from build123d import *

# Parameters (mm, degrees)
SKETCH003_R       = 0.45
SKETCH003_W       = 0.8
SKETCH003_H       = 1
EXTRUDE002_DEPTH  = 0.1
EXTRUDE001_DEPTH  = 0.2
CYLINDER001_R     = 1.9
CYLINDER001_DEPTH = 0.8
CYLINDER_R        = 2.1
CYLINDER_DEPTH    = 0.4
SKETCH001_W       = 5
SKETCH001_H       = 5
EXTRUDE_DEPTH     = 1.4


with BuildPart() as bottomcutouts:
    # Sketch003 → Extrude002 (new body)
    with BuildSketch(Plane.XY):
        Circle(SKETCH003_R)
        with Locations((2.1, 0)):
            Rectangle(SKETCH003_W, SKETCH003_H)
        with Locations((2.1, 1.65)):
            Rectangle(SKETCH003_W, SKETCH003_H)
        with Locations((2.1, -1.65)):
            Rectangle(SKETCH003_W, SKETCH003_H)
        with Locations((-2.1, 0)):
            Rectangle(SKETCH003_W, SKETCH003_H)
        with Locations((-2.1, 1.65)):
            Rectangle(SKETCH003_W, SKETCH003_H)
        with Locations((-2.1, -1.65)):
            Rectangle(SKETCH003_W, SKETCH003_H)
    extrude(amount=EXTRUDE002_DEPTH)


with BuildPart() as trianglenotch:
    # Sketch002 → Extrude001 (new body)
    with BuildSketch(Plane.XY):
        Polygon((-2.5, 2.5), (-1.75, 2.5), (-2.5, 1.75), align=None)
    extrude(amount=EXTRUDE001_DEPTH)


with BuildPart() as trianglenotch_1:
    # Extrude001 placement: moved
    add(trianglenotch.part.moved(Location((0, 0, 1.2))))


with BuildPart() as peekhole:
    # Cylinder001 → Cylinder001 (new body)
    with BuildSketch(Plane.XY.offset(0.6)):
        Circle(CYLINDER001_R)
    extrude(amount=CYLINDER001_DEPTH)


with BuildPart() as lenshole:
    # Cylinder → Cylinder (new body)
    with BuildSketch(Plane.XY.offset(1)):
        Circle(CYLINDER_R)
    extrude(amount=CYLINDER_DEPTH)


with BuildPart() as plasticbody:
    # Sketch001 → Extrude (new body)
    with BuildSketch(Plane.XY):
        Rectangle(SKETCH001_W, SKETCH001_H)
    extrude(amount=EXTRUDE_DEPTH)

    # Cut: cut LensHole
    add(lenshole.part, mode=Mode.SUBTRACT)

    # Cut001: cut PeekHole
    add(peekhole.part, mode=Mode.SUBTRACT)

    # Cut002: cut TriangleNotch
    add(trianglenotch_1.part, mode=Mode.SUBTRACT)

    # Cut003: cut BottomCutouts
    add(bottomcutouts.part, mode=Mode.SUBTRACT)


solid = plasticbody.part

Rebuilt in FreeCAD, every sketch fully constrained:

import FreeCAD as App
import Part
import Sketcher
from FreeCAD import Vector
Q = App.Units.Quantity


def add_polygon(sketch, points):
    """Adds a closed chain of lines whose ends are joined by coincident constraints."""
    first, n = sketch.GeometryCount, len(points)
    for a, b in zip(points, points[1:] + points[:1]):
        sketch.addGeometry(Part.LineSegment(App.Vector(*a, 0), App.Vector(*b, 0)), False)
    for i in range(n):
        sketch.addConstraint(Sketcher.Constraint("Coincident", first + i, 2, first + (i + 1) % n, 1))

doc = App.newDocument("Part")
params = doc.addObject("Spreadsheet::Sheet", "Params")
for row, (alias, value) in enumerate([
    ("sketch1_diameter", "0.9 mm"),
    ("sketch1_height", "1 mm"),
    ("sketch1_width", "0.8 mm"),
    ("pad1_length", "0.1 mm"),
    ("sketch2_width", "0.75 mm"),
    ("pad2_length", "0.2 mm"),
    ("sketch3_diameter", "3.8 mm"),
    ("pad3_length", "0.8 mm"),
    ("sketch4_diameter", "4.2 mm"),
    ("pad4_length", "0.4 mm"),
    ("sketch5_width", "5 mm"),
    ("pad5_length", "1.4 mm"),
], start=1):
    params.set(f"A{row}", alias)
    params.set(f"B{row}", "=" + value)
    params.setAlias(f"B{row}", alias)

body = doc.addObject("PartDesign::Body", "Body")
body.AllowCompound = True

sketch1 = body.newObject("Sketcher::SketchObject", "Sketch")
sketch1.AttachmentSupport = (doc.getObject("XY_Plane"), [""])
sketch1.MapMode = "FlatFace"
sketch1.addGeometry(Part.Circle(Vector(0, 0, 0), Vector(0, 0, 1), 0.45), False)
add_polygon(sketch1, [(1.7, 0.5), (1.7, -0.5), (2.5, -0.5), (2.5, 0.5)])
add_polygon(sketch1, [(1.7, 2.15), (1.7, 1.15), (2.5, 1.15), (2.5, 2.15)])
add_polygon(sketch1, [(1.7, -1.15), (1.7, -2.15), (2.5, -2.15), (2.5, -1.15)])
add_polygon(sketch1, [(-2.5, 0.5), (-2.5, -0.5), (-1.7, -0.5), (-1.7, 0.5)])
add_polygon(sketch1, [(-2.5, 2.15), (-2.5, 1.15), (-1.7, 1.15), (-1.7, 2.15)])
add_polygon(sketch1, [(-2.5, -1.15), (-2.5, -2.15), (-1.7, -2.15), (-1.7, -1.15)])
sketch1.addConstraint(Sketcher.Constraint("Vertical", 1))
sketch1.addConstraint(Sketcher.Constraint("Horizontal", 2))
sketch1.addConstraint(Sketcher.Constraint("Vertical", 3))
sketch1.addConstraint(Sketcher.Constraint("Horizontal", 4))
sketch1.addConstraint(Sketcher.Constraint("Vertical", 5))
sketch1.addConstraint(Sketcher.Constraint("Horizontal", 6))
sketch1.addConstraint(Sketcher.Constraint("Vertical", 7))
sketch1.addConstraint(Sketcher.Constraint("Horizontal", 8))
sketch1.addConstraint(Sketcher.Constraint("Vertical", 9))
sketch1.addConstraint(Sketcher.Constraint("Horizontal", 10))
sketch1.addConstraint(Sketcher.Constraint("Vertical", 11))
sketch1.addConstraint(Sketcher.Constraint("Horizontal", 12))
sketch1.addConstraint(Sketcher.Constraint("Vertical", 13))
sketch1.addConstraint(Sketcher.Constraint("Horizontal", 14))
sketch1.addConstraint(Sketcher.Constraint("Vertical", 15))
sketch1.addConstraint(Sketcher.Constraint("Horizontal", 16))
sketch1.addConstraint(Sketcher.Constraint("Vertical", 17))
sketch1.addConstraint(Sketcher.Constraint("Horizontal", 18))
sketch1.addConstraint(Sketcher.Constraint("Vertical", 19))
sketch1.addConstraint(Sketcher.Constraint("Horizontal", 20))
sketch1.addConstraint(Sketcher.Constraint("Vertical", 21))
sketch1.addConstraint(Sketcher.Constraint("Horizontal", 22))
sketch1.addConstraint(Sketcher.Constraint("Vertical", 23))
sketch1.addConstraint(Sketcher.Constraint("Horizontal", 24))
sketch1.addConstraint(Sketcher.Constraint("Coincident", 0, 3, -1, 1))
sketch1.addConstraint(Sketcher.Constraint("Symmetric", 3, 2, 13, 2, -1, 1))
sketch1.addConstraint(Sketcher.Constraint("Symmetric", 1, 2, 15, 2, -1, 1))
sketch1.addConstraint(Sketcher.Constraint("Symmetric", 11, 2, 17, 2, -1, 1))
sketch1.addConstraint(Sketcher.Constraint("Symmetric", 9, 2, 19, 2, -1, 1))
sketch1.addConstraint(Sketcher.Constraint("Symmetric", 7, 2, 21, 2, -1, 1))
sketch1.addConstraint(Sketcher.Constraint("Symmetric", 5, 2, 23, 2, -1, 1))
sketch1.addConstraint(Sketcher.Constraint("Symmetric", 6, 2, 17, 2, -2))
sketch1.addConstraint(Sketcher.Constraint("Symmetric", 8, 2, 19, 2, -2))
sketch1.addConstraint(Sketcher.Constraint("Horizontal", 2, 2, 13, 2))
sketch1.addConstraint(Sketcher.Constraint("Vertical", 4, 2, 5, 2))
sketch1.addConstraint(Sketcher.Constraint("Vertical", 3, 2, 6, 2))
sketch1.addConstraint(Sketcher.Constraint("Equal", 3, 5))
sketch1.addConstraint(Sketcher.Constraint("Diameter", 0, Q("0.9 mm")))
sketch1.addConstraint(Sketcher.Constraint("DistanceY", 1, 2, 1, 1, Q("1 mm")))
sketch1.addConstraint(Sketcher.Constraint("DistanceX", 2, 1, 2, 2, Q("0.8 mm")))
sketch1.addConstraint(Sketcher.Constraint("DistanceX", -1, 1, 1, 2, Q("1.7 mm")))
sketch1.addConstraint(Sketcher.Constraint("DistanceY", -1, 1, 5, 2, Q("1.15 mm")))
sketch1.setExpression("Constraints[61]", "Params.sketch1_diameter")
sketch1.setExpression("Constraints[62]", "Params.sketch1_height")
sketch1.setExpression("Constraints[63]", "Params.sketch1_width")
pad1 = body.newObject("PartDesign::Pad", "Pad")
pad1.Profile = sketch1
pad1.setExpression("Length", "Params.pad1_length")
body2 = doc.addObject("PartDesign::Body", "Body001")

sketch2 = body2.newObject("Sketcher::SketchObject", "Sketch001")
sketch2.AttachmentSupport = (doc.getObject("XY_Plane001"), [""])
sketch2.MapMode = "FlatFace"
add_polygon(sketch2, [(-1.8, 2.5), (-2.5, 2.5), (-2.5, 1.8)])
sketch2.addConstraint(Sketcher.Constraint("Horizontal", 0))
sketch2.addConstraint(Sketcher.Constraint("Vertical", 1))
sketch2.addConstraint(Sketcher.Constraint("Equal", 0, 1))
sketch2.addConstraint(Sketcher.Constraint("DistanceX", 0, 2, 0, 1, Q("0.75 mm")))
sketch2.addConstraint(Sketcher.Constraint("DistanceX", 0, 2, -1, 1, Q("2.5 mm")))
sketch2.addConstraint(Sketcher.Constraint("DistanceY", -1, 1, 0, 2, Q("2.5 mm")))
sketch2.setExpression("Constraints[6]", "Params.sketch2_width")
pad2 = body2.newObject("PartDesign::Pad", "Pad001")
pad2.Profile = sketch2
pad2.setExpression("Length", "Params.pad2_length")
body3 = doc.addObject("PartDesign::Body", "Body002")
doc.recompute()

body2.Placement = App.Placement(Vector(0, 0, 1.2), App.Rotation(Vector(0, 0, 1), 0))
boolean = body3.newObject("PartDesign::Boolean", "Boolean")
boolean.Type = "Fuse"
boolean.addObjects([body2])
body4 = doc.addObject("PartDesign::Body", "Body003")

sketch3 = body4.newObject("Sketcher::SketchObject", "Sketch002")
sketch3.AttachmentSupport = (doc.getObject("XY_Plane003"), [""])
sketch3.MapMode = "FlatFace"
sketch3.AttachmentOffset = App.Placement(Vector(0, 0, 0.6), App.Rotation())
sketch3.addGeometry(Part.Circle(Vector(0, 0, 0), Vector(0, 0, 1), 1.9), False)
sketch3.addConstraint(Sketcher.Constraint("Coincident", 0, 3, -1, 1))
sketch3.addConstraint(Sketcher.Constraint("Diameter", 0, Q("3.8 mm")))
sketch3.setExpression("Constraints[1]", "Params.sketch3_diameter")
pad3 = body4.newObject("PartDesign::Pad", "Pad002")
pad3.Profile = sketch3
pad3.setExpression("Length", "Params.pad3_length")
body5 = doc.addObject("PartDesign::Body", "Body004")

sketch4 = body5.newObject("Sketcher::SketchObject", "Sketch003")
sketch4.AttachmentSupport = (doc.getObject("XY_Plane004"), [""])
sketch4.MapMode = "FlatFace"
sketch4.AttachmentOffset = App.Placement(Vector(0, 0, 1), App.Rotation())
sketch4.addGeometry(Part.Circle(Vector(0, 0, 0), Vector(0, 0, 1), 2.1), False)
sketch4.addConstraint(Sketcher.Constraint("Coincident", 0, 3, -1, 1))
sketch4.addConstraint(Sketcher.Constraint("Diameter", 0, Q("4.2 mm")))
sketch4.setExpression("Constraints[1]", "Params.sketch4_diameter")
pad4 = body5.newObject("PartDesign::Pad", "Pad003")
pad4.Profile = sketch4
pad4.setExpression("Length", "Params.pad4_length")
body6 = doc.addObject("PartDesign::Body", "Body005")

sketch5 = body6.newObject("Sketcher::SketchObject", "Sketch004")
sketch5.AttachmentSupport = (doc.getObject("XY_Plane005"), [""])
sketch5.MapMode = "FlatFace"
add_polygon(sketch5, [(-2, 2), (-2, -2), (2, -2), (2, 2)])
sketch5.addConstraint(Sketcher.Constraint("Vertical", 0))
sketch5.addConstraint(Sketcher.Constraint("Horizontal", 1))
sketch5.addConstraint(Sketcher.Constraint("Vertical", 2))
sketch5.addConstraint(Sketcher.Constraint("Horizontal", 3))
sketch5.addConstraint(Sketcher.Constraint("Symmetric", 0, 2, 2, 2, -1, 1))
sketch5.addConstraint(Sketcher.Constraint("Equal", 3, 0))
sketch5.addConstraint(Sketcher.Constraint("DistanceX", 1, 1, 1, 2, Q("5 mm")))
sketch5.setExpression("Constraints[10]", "Params.sketch5_width")
pad5 = body6.newObject("PartDesign::Pad", "Pad004")
pad5.Profile = sketch5
pad5.setExpression("Length", "Params.pad5_length")
doc.recompute()

boolean2 = body6.newObject("PartDesign::Boolean", "Boolean001")
boolean2.Type = "Cut"
boolean2.addObjects([body5])
doc.recompute()

boolean3 = body6.newObject("PartDesign::Boolean", "Boolean002")
boolean3.Type = "Cut"
boolean3.addObjects([body4])
doc.recompute()

boolean4 = body6.newObject("PartDesign::Boolean", "Boolean003")
boolean4.Type = "Cut"
boolean4.addObjects([body3])
doc.recompute()

boolean5 = body6.newObject("PartDesign::Boolean", "Boolean004")
boolean5.Type = "Cut"
boolean5.addObjects([body])

doc.recompute()
